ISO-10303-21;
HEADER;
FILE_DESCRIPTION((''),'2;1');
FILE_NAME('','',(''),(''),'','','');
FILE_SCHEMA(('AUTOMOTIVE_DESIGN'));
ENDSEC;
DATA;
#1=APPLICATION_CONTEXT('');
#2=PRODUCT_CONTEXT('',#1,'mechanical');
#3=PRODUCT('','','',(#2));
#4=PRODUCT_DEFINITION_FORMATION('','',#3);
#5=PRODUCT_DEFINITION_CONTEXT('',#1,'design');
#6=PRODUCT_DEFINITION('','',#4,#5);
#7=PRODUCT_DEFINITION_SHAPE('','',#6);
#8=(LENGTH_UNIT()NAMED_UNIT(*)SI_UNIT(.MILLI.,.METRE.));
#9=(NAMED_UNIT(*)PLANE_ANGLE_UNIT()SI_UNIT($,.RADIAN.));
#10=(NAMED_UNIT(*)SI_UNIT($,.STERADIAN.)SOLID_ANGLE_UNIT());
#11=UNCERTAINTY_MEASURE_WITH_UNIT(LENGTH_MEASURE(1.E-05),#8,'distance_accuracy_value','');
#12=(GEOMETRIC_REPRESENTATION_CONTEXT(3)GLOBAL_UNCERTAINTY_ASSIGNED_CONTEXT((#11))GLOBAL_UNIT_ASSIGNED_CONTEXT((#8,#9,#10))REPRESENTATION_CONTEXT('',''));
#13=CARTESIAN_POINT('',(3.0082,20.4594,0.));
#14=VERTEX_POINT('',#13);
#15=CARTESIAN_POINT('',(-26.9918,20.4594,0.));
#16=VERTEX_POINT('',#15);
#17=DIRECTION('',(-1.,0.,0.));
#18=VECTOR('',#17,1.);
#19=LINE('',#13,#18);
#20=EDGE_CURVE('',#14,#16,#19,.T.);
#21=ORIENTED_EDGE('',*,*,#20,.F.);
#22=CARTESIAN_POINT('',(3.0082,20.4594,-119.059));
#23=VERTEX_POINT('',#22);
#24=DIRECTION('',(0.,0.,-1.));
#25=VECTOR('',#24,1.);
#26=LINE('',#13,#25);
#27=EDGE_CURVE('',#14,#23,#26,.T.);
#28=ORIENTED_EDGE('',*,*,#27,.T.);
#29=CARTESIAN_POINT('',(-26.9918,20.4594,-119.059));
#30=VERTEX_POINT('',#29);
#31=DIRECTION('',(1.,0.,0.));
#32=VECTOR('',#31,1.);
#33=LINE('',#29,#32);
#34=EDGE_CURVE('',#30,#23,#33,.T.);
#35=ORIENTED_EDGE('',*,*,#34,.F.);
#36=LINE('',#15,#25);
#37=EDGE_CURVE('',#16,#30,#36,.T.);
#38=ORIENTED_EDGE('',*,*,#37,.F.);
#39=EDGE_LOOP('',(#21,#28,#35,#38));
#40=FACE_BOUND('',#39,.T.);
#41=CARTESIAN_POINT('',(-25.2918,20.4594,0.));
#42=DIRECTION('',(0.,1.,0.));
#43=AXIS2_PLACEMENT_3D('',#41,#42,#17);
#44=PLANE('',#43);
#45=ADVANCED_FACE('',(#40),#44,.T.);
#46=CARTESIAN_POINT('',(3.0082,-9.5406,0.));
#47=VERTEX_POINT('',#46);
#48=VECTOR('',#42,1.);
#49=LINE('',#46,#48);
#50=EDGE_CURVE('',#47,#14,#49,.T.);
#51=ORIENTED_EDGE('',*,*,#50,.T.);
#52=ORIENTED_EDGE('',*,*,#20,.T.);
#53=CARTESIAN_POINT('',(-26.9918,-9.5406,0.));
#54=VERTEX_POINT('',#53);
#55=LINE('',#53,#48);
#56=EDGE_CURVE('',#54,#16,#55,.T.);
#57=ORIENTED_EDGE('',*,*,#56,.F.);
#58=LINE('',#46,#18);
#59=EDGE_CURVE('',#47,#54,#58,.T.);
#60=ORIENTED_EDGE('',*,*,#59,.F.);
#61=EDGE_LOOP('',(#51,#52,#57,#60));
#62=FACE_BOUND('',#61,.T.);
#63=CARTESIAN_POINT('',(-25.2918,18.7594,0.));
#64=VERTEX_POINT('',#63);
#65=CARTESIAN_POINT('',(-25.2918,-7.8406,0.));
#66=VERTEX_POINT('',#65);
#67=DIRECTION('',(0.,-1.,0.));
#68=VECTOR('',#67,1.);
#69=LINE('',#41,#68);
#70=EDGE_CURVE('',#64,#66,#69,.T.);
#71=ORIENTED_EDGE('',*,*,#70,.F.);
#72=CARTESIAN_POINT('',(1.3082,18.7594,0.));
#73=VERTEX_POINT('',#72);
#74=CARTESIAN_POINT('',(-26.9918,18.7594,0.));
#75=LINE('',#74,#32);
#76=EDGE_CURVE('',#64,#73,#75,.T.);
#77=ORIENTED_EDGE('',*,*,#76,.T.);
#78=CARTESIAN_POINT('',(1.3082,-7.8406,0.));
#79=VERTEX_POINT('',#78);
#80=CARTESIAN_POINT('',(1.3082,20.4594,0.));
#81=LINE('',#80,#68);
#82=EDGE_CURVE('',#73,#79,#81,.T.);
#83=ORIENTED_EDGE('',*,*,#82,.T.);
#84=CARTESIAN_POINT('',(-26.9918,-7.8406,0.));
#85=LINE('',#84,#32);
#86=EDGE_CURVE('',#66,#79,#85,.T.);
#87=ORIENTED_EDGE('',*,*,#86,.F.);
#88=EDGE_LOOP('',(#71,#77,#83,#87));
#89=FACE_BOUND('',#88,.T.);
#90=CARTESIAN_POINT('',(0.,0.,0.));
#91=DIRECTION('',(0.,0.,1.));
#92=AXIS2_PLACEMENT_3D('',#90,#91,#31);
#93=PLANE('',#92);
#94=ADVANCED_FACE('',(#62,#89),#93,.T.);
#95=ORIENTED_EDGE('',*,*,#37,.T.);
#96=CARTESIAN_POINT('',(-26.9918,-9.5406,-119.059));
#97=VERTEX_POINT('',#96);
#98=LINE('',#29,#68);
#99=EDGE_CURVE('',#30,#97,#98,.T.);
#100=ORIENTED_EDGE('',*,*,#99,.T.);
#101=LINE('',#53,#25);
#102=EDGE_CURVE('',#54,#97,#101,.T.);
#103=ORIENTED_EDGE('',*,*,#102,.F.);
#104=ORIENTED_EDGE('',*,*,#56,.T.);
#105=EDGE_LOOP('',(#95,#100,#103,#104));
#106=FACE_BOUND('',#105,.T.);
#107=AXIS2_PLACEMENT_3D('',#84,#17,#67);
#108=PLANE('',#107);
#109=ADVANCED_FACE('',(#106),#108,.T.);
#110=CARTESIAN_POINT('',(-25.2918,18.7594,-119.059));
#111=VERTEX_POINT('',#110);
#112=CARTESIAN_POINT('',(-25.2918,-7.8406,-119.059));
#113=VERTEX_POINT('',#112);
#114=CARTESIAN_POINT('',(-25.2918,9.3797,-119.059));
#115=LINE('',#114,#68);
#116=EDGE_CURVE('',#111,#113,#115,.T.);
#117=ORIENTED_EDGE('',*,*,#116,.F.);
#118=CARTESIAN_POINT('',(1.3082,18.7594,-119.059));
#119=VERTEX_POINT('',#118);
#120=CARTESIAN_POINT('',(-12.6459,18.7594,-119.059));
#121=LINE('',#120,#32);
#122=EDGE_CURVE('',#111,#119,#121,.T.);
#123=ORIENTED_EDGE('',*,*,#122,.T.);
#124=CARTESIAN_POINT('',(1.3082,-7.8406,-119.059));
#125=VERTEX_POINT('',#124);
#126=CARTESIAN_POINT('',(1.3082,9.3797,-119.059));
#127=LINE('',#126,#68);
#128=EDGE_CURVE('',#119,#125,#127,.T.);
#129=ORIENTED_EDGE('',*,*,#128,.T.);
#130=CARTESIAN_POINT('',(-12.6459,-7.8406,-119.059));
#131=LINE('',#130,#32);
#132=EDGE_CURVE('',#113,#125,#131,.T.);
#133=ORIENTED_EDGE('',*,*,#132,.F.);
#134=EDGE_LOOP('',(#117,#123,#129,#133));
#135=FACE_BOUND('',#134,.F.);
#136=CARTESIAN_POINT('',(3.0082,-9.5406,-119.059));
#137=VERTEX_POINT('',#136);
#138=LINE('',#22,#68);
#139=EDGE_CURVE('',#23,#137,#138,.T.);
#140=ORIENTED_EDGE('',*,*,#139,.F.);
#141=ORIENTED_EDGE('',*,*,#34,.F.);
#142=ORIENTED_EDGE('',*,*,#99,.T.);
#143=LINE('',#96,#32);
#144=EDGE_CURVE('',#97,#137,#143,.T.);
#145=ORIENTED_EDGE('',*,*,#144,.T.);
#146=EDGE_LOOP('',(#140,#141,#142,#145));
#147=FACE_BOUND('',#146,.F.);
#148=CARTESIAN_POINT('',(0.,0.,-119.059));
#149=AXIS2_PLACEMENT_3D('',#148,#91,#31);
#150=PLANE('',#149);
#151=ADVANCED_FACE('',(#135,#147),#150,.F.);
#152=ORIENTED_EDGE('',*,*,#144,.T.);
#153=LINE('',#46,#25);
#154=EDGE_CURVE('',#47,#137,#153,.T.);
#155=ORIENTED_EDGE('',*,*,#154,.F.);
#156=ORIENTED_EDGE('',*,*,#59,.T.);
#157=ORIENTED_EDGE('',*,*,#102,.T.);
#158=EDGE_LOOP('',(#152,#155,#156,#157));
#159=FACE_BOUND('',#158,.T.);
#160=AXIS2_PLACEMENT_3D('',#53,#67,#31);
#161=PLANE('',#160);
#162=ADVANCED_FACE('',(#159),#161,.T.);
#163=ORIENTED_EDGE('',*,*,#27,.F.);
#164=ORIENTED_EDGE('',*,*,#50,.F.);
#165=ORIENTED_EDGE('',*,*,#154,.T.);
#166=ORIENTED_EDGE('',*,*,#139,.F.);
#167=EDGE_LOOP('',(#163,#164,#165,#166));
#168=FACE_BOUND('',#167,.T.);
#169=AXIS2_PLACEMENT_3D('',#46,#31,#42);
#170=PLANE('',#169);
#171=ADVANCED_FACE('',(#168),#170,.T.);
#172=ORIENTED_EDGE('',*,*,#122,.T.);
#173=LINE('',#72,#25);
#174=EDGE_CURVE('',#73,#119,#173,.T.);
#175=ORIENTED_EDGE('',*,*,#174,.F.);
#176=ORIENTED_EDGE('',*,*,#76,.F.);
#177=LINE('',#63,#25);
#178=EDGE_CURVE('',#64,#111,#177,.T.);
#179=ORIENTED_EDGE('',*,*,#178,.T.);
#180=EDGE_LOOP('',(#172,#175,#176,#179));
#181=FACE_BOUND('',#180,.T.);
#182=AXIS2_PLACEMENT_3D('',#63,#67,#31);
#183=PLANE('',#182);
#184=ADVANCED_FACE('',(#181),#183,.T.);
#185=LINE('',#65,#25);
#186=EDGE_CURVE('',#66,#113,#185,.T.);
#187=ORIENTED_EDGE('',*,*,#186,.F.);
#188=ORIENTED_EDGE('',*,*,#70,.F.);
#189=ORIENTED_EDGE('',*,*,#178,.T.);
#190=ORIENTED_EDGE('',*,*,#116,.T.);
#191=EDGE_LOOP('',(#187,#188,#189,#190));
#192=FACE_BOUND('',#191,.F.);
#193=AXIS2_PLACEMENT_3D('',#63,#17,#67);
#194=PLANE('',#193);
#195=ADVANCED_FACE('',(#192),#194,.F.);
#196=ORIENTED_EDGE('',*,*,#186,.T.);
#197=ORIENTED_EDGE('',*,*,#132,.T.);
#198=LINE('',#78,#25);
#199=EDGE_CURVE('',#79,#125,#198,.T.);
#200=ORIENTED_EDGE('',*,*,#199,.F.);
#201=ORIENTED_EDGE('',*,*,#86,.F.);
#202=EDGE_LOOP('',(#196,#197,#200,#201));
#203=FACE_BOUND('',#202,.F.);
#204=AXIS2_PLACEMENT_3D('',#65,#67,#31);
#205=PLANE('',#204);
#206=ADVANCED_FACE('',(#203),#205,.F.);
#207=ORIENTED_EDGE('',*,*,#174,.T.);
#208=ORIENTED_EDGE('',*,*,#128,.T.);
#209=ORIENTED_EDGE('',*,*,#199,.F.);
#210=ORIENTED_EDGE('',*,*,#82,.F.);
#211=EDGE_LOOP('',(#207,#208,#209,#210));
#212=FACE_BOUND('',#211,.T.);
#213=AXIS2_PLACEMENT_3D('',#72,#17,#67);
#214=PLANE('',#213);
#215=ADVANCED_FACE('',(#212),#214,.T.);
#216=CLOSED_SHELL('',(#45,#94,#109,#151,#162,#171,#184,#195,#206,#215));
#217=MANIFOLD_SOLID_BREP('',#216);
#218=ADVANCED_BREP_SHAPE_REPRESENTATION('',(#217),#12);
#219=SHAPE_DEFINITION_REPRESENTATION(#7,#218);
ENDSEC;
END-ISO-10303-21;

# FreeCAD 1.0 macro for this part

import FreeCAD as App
import Part
import Sketcher

doc = App.newDocument("Part")
params = doc.addObject("Spreadsheet::Sheet", "Params")
for row, (alias, value) in enumerate([
    ("sketch1_width", "30 mm"),
    ("pad1_length", "119.059 mm"),
    ("sketch2_width", "26.6 mm"),
    ("pocket1_length", "160 mm"),
], start=1):
    params.set(f"A{row}", alias)
    params.set(f"B{row}", "=" + value)
    params.setAlias(f"B{row}", alias)

body = doc.addObject("PartDesign::Body", "Body")

# Sketch on XY plane
sketch1 = doc.addObject("Sketcher::SketchObject", "Sketch")
body.addObject(sketch1)
sketch1.AttachmentSupport = (doc.XY_Plane, [""])
sketch1.MapMode = "FlatFace"
sketch1.addGeometry([
    Part.LineSegment(App.Vector(-27, -10, 0), App.Vector(3, -10, 0)),
    Part.LineSegment(App.Vector(3, -10, 0), App.Vector(3, 20, 0)),
    Part.LineSegment(App.Vector(3, 20, 0), App.Vector(-27, 20, 0)),
    Part.LineSegment(App.Vector(-27, 20, 0), App.Vector(-27, -10, 0)),
], False)
sketch1.addConstraint([
    Sketcher.Constraint("Coincident", 0, 2, 1, 1),
    Sketcher.Constraint("Coincident", 1, 2, 2, 1),
    Sketcher.Constraint("Coincident", 2, 2, 3, 1),
    Sketcher.Constraint("Coincident", 3, 2, 0, 1),
    Sketcher.Constraint("Horizontal", 0),
    Sketcher.Constraint("Vertical", 1),
    Sketcher.Constraint("Horizontal", 2),
    Sketcher.Constraint("Vertical", 3),
    Sketcher.Constraint("Equal", 2, 1),
    Sketcher.Constraint("DistanceX", 0, 1, 0, 2, 30.0),
    Sketcher.Constraint("DistanceX", -1, 1, 0, 2, 3.0082),
    Sketcher.Constraint("DistanceY", 0, 2, -1, 1, 9.5406),
])
sketch1.setExpression("Constraints[9]", "Params.sketch1_width")
pad1 = doc.addObject("PartDesign::Pad", "Pad")
body.addObject(pad1)
pad1.Profile = sketch1
pad1.setExpression("Length", "Params.pad1_length")
pad1.Reversed = True

# Sketch on XY plane
sketch2 = doc.addObject("Sketcher::SketchObject", "Sketch001")
body.addObject(sketch2)
sketch2.AttachmentSupport = (doc.XY_Plane, [""])
sketch2.MapMode = "FlatFace"
sketch2.addGeometry([
    Part.LineSegment(App.Vector(-25, 19, 0), App.Vector(-25, -8, 0)),
    Part.LineSegment(App.Vector(-25, -8, 0), App.Vector(1, -8, 0)),
    Part.LineSegment(App.Vector(1, -8, 0), App.Vector(1, 19, 0)),
    Part.LineSegment(App.Vector(1, 19, 0), App.Vector(-25, 19, 0)),
], False)
sketch2.addConstraint([
    Sketcher.Constraint("Coincident", 0, 2, 1, 1),
    Sketcher.Constraint("Coincident", 1, 2, 2, 1),
    Sketcher.Constraint("Coincident", 2, 2, 3, 1),
    Sketcher.Constraint("Coincident", 3, 2, 0, 1),
    Sketcher.Constraint("Vertical", 0),
    Sketcher.Constraint("Horizontal", 1),
    Sketcher.Constraint("Vertical", 2),
    Sketcher.Constraint("Horizontal", 3),
    Sketcher.Constraint("Equal", 3, 0),
    Sketcher.Constraint("DistanceX", 1, 1, 1, 2, 26.6),
    Sketcher.Constraint("DistanceX", 0, 2, -1, 1, 25.2918),
    Sketcher.Constraint("DistanceY", 0, 2, -1, 1, 7.8406),
])
sketch2.setExpression("Constraints[9]", "Params.sketch2_width")
pocket1 = doc.addObject("PartDesign::Pocket", "Pocket")
body.addObject(pocket1)
pocket1.Profile = sketch2
pocket1.setExpression("Length", "Params.pocket1_length")

doc.recompute()
